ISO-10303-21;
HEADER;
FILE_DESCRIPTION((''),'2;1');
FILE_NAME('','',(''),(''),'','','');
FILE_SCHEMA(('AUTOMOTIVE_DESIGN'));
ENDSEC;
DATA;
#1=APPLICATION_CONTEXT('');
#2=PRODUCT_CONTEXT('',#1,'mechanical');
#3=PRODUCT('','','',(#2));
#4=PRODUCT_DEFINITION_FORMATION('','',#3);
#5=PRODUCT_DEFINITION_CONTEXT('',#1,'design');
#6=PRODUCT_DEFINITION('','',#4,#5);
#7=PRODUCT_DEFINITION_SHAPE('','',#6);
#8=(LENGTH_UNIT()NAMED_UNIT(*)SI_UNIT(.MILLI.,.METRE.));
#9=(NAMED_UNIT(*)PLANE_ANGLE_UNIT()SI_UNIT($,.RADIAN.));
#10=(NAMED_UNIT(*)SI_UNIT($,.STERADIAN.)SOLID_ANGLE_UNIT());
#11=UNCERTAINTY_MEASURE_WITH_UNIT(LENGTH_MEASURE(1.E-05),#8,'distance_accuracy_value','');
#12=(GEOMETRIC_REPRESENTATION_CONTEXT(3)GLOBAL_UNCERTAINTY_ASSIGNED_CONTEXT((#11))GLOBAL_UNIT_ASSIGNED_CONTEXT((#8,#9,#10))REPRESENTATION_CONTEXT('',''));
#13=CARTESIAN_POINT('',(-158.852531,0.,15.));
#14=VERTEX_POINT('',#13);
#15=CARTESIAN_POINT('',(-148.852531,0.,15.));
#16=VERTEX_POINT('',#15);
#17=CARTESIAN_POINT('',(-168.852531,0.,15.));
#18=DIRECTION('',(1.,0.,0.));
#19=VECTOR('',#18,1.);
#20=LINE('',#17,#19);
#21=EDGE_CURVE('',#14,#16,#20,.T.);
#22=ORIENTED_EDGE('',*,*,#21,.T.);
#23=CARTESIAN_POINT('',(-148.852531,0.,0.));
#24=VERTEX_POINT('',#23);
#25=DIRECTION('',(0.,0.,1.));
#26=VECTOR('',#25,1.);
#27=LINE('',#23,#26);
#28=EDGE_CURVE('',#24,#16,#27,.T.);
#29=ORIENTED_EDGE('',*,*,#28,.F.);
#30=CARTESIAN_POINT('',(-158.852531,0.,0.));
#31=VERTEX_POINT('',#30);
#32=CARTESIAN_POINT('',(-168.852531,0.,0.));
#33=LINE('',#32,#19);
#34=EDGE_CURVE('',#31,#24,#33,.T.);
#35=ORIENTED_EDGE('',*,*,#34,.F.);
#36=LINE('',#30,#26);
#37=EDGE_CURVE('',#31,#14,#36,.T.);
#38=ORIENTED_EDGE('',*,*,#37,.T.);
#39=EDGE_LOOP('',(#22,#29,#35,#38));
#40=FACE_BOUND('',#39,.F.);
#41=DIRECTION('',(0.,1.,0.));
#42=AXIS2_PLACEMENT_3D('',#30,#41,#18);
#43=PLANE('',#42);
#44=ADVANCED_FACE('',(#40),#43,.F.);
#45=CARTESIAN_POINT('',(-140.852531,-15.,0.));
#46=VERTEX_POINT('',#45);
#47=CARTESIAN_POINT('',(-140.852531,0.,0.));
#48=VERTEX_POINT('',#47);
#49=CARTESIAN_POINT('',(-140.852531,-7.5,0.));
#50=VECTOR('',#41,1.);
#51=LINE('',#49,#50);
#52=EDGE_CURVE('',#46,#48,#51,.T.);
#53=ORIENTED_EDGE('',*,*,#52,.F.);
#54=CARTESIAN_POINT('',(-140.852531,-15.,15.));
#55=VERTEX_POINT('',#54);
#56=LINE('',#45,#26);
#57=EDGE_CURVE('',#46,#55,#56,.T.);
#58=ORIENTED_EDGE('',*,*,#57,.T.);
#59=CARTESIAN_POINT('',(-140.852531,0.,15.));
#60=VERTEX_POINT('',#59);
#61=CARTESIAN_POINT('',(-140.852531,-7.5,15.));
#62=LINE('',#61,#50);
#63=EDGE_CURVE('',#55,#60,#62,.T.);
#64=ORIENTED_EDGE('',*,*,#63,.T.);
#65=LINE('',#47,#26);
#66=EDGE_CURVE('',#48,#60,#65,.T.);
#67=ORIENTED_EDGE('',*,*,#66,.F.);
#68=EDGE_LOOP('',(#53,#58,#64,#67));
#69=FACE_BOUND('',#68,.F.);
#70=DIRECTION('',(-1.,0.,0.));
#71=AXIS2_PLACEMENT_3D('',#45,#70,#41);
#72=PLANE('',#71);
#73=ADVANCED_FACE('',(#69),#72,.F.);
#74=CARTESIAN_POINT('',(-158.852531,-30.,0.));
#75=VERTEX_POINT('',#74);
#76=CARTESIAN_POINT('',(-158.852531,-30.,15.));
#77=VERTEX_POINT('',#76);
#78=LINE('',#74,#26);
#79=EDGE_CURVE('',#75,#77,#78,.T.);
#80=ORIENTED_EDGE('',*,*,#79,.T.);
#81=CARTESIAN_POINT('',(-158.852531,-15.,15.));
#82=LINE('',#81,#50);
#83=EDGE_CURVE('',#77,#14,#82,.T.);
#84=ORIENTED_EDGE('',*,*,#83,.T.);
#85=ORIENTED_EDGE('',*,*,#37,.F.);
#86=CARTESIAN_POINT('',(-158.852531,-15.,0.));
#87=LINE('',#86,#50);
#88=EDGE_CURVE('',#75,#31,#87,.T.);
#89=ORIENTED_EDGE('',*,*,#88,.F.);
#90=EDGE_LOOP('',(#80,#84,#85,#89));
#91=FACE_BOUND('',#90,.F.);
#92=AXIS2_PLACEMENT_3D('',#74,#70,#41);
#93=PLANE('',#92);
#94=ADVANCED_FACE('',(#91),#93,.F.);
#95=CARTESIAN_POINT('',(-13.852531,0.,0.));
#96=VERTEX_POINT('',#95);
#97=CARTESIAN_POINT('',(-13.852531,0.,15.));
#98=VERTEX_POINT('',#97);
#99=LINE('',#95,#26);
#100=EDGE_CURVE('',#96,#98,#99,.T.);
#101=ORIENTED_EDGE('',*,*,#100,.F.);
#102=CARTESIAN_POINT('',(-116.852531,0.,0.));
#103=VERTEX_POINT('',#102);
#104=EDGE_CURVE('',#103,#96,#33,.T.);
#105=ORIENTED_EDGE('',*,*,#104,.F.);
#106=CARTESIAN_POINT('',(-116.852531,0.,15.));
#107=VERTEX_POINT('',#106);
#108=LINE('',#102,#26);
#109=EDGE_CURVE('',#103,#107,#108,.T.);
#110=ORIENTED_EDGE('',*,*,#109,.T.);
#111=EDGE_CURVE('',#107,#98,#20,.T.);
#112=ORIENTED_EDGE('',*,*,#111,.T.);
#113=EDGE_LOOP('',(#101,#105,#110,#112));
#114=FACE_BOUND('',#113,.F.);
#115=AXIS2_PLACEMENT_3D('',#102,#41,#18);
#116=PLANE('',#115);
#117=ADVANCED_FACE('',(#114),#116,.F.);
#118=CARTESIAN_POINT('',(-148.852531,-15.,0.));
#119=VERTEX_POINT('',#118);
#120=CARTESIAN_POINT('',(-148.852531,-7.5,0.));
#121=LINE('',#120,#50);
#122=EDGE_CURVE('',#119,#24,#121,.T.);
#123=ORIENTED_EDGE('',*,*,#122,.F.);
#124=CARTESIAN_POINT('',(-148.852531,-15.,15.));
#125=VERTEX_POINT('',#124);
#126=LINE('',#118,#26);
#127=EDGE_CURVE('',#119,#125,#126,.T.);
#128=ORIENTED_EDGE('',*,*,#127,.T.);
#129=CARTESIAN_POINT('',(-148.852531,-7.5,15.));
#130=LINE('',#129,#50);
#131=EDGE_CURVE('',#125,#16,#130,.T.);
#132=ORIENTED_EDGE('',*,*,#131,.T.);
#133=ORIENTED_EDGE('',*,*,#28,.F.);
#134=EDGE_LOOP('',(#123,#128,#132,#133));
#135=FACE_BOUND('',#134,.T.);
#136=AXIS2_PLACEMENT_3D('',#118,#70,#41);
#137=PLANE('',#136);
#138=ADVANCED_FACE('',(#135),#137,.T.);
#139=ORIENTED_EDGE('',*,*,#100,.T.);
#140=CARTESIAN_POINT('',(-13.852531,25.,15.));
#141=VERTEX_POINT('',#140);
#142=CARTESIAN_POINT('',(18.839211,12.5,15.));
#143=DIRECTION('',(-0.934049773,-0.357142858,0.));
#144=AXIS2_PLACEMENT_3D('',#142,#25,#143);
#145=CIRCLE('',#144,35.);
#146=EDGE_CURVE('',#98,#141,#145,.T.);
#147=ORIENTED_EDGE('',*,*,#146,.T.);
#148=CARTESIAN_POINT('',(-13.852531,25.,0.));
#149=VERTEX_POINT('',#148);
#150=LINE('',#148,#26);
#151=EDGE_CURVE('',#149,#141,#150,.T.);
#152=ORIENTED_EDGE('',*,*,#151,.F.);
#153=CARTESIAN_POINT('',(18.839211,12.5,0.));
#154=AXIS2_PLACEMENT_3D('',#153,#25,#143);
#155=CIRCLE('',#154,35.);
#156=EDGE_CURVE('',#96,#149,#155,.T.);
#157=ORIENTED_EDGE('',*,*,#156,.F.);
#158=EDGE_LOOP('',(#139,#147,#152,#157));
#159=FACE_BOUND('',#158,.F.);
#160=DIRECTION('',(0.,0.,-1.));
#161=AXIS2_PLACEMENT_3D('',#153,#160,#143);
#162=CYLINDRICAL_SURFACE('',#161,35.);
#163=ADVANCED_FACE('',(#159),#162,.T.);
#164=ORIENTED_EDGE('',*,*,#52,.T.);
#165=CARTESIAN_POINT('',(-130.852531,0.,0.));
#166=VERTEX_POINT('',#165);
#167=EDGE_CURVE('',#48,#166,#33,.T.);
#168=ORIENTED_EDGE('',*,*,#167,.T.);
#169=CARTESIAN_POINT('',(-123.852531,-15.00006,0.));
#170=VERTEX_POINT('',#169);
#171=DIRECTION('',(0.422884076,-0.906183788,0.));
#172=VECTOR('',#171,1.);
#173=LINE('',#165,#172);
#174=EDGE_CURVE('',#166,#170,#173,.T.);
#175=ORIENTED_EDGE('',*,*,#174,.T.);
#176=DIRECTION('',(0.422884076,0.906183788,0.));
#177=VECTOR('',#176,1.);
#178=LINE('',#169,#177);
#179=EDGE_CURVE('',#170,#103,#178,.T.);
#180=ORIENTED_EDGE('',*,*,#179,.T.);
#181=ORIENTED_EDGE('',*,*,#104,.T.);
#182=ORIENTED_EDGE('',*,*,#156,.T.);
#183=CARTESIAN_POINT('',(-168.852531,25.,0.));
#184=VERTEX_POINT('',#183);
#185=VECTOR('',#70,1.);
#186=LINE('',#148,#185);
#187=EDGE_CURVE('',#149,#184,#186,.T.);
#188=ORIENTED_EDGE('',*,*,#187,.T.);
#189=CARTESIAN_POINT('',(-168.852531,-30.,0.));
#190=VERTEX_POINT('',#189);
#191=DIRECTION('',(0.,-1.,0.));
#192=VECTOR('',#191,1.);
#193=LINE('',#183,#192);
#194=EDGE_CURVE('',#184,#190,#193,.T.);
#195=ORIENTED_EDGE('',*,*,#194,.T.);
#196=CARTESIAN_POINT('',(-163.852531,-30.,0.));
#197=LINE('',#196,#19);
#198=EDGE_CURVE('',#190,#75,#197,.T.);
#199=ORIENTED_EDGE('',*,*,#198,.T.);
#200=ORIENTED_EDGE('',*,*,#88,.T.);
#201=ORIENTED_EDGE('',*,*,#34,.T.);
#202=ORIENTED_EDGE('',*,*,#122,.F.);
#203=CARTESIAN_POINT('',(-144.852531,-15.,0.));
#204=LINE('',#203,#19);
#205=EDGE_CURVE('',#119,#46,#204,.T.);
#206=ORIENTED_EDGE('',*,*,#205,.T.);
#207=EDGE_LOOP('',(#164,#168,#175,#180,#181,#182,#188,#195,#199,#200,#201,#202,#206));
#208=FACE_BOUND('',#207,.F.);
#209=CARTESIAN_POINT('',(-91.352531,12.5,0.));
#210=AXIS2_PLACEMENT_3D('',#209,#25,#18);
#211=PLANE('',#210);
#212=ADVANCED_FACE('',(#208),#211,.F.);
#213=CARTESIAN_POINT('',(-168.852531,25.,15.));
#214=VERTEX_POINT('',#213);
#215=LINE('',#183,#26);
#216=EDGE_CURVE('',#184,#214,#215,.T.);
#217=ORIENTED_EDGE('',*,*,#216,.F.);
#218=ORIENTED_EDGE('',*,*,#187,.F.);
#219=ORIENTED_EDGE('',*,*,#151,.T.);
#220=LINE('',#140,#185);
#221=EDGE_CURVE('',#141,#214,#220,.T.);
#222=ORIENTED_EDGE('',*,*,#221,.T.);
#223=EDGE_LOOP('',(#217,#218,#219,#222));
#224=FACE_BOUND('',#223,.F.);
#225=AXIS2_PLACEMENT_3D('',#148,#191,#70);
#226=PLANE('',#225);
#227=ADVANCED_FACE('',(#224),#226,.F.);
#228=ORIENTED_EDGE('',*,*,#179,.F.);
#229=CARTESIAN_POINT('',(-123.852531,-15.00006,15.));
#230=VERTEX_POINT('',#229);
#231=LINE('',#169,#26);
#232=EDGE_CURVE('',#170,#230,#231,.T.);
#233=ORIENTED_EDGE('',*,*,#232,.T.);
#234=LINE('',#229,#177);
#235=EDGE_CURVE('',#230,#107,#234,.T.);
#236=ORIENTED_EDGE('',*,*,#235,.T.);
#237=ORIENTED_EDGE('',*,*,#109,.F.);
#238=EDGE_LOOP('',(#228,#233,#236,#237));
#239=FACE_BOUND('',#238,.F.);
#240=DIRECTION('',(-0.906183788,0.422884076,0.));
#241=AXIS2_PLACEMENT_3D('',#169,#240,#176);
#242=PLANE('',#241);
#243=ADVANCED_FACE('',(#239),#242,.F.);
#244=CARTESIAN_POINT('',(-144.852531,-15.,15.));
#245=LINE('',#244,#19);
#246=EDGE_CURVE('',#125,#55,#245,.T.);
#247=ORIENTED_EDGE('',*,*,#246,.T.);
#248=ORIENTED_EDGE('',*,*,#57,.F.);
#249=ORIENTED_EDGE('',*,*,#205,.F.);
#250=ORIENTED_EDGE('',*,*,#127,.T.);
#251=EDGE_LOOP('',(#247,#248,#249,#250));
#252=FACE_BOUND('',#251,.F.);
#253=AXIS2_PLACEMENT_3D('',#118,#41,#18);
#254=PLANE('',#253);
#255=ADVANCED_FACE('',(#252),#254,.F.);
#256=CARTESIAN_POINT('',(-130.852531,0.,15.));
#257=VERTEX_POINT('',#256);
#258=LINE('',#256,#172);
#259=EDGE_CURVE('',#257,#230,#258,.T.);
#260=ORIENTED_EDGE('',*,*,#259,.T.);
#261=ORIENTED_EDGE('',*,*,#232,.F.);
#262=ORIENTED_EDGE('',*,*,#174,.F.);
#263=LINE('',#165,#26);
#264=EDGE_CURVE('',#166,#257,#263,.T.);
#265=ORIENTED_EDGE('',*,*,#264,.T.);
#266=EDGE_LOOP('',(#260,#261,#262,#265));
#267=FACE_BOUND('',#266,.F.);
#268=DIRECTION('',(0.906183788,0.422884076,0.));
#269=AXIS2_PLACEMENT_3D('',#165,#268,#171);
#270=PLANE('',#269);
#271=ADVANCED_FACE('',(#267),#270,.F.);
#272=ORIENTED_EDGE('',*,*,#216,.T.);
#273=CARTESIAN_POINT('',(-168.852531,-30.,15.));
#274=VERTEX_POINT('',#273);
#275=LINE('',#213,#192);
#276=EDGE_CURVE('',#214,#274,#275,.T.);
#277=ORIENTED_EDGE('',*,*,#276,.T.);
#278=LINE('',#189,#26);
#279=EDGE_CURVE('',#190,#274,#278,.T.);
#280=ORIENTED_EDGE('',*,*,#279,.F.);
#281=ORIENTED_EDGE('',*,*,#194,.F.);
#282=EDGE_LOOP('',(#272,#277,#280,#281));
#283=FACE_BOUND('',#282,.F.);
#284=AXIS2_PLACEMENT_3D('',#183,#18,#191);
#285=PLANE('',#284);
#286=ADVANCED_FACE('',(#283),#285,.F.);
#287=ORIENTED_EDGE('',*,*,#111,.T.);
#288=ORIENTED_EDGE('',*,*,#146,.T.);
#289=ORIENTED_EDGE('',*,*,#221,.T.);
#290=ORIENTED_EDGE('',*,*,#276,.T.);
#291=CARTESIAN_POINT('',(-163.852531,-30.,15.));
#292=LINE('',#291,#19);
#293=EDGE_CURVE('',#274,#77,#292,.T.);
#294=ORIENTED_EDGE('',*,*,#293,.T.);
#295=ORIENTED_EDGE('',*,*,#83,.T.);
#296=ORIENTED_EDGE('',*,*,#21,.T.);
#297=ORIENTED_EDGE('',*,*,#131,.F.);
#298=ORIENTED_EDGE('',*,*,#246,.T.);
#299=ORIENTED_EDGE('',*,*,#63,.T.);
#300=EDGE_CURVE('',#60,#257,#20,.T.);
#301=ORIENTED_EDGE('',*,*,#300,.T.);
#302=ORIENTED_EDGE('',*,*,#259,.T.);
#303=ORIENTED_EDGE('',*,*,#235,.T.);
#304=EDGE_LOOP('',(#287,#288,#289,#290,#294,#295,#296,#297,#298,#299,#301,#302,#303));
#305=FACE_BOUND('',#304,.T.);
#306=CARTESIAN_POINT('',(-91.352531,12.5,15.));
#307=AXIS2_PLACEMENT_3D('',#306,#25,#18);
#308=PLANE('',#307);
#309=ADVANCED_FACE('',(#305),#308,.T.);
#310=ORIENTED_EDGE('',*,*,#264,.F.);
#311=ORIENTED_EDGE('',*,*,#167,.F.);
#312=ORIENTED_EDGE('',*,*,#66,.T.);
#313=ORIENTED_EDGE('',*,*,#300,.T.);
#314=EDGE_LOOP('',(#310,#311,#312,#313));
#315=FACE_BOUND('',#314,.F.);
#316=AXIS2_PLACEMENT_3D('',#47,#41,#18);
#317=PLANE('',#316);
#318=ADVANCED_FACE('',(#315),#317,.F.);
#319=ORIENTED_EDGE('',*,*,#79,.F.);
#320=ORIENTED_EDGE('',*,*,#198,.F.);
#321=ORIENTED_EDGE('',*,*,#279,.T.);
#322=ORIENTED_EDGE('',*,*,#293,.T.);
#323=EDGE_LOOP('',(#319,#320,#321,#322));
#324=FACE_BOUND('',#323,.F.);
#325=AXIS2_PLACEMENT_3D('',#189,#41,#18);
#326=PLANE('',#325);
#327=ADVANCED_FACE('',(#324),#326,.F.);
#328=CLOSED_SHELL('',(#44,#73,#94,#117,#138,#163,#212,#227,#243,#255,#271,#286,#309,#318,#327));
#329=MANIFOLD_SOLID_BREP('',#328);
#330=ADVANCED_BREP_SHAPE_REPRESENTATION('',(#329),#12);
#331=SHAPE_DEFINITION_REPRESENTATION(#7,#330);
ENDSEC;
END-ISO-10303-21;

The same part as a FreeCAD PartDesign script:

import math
import FreeCAD as App
import Part
import Sketcher

V = App.Vector

doc = App.newDocument("Part")
body = doc.addObject("PartDesign::Body", "Body")

# Sketch on XY plane
sketch1 = body.newObject("Sketcher::SketchObject", "Sketch")
sketch1.AttachmentSupport = (doc.getObject("XY_Plane"), [""])
sketch1.MapMode = "FlatFace"
sketch1.addGeometry([
    Part.LineSegment(V(-14, 25, 0), V(-169, 25, 0)),  # 0
    Part.LineSegment(V(-169, 25, 0), V(-169, -30, 0)),  # 1
    Part.LineSegment(V(-169, -30, 0), V(-159, -30, 0)),  # 2
    Part.LineSegment(V(-159, -30, 0), V(-159, 0, 0)),  # 3
    Part.LineSegment(V(-159, 0, 0), V(-149, 0, 0)),  # 4
    Part.LineSegment(V(-149, 0, 0), V(-149, -15, 0)),  # 5
    Part.LineSegment(V(-149, -15, 0), V(-141, -15, 0)),  # 6
    Part.LineSegment(V(-141, -15, 0), V(-141, 0, 0)),  # 7
    Part.LineSegment(V(-141, 0, 0), V(-131, 0, 0)),  # 8
    Part.LineSegment(V(-131, 0, 0), V(-124, -15, 0)),  # 9
    Part.LineSegment(V(-124, -15, 0), V(-117, 0, 0)),  # 10
    Part.LineSegment(V(-117, 0, 0), V(-14, 0, 0)),  # 11
    Part.ArcOfCircle(Part.Circle(V(19, 12, 0), V(0, 0, 1), 35), math.radians(-159), math.radians(159)),  # 12
], False)
sketch1.addConstraint([
    Sketcher.Constraint("Coincident", 0, 2, 1, 1),
    Sketcher.Constraint("Coincident", 1, 2, 2, 1),
    Sketcher.Constraint("Coincident", 2, 2, 3, 1),
    Sketcher.Constraint("Coincident", 3, 2, 4, 1),
    Sketcher.Constraint("Coincident", 4, 2, 5, 1),
    Sketcher.Constraint("Coincident", 5, 2, 6, 1),
    Sketcher.Constraint("Coincident", 6, 2, 7, 1),
    Sketcher.Constraint("Coincident", 7, 2, 8, 1),
    Sketcher.Constraint("Coincident", 8, 2, 9, 1),
    Sketcher.Constraint("Coincident", 9, 2, 10, 1),
    Sketcher.Constraint("Coincident", 10, 2, 11, 1),
    Sketcher.Constraint("Coincident", 11, 2, 12, 1),
    Sketcher.Constraint("Coincident", 12, 2, 0, 1),
    Sketcher.Constraint("Horizontal", 0),
    Sketcher.Constraint("Vertical", 1),
    Sketcher.Constraint("Horizontal", 2),
    Sketcher.Constraint("Vertical", 3),
    Sketcher.Constraint("Horizontal", 4),
    Sketcher.Constraint("Vertical", 5),
    Sketcher.Constraint("Horizontal", 6),
    Sketcher.Constraint("Vertical", 7),
    Sketcher.Constraint("Horizontal", 8),
    Sketcher.Constraint("Horizontal", 11),
    Sketcher.Constraint("PointOnObject", 3, 2, -1),
    Sketcher.Constraint("PointOnObject", 7, 2, -1),
    Sketcher.Constraint("PointOnObject", 10, 2, -1),
    Sketcher.Constraint("Vertical", 11, 2, 12, 2),
    Sketcher.Constraint("Equal", 2, 4),
    Sketcher.Constraint("Equal", 4, 8),
    Sketcher.Constraint("Equal", 9, 10),
    Sketcher.Constraint("Radius", 12, 35.0),
    Sketcher.Constraint("DistanceX", 0, 2, 0, 1, 155.0),
    Sketcher.Constraint("DistanceX", 2, 1, 2, 2, 10.0),
    Sketcher.Constraint("DistanceX", 6, 1, 6, 2, 8.0),
    Sketcher.Constraint("DistanceX", 11, 1, 11, 2, 103.0),
    Sketcher.Constraint("DistanceY", 1, 2, 1, 1, 55.0),
    Sketcher.Constraint("DistanceY", 3, 1, 3, 2, 30.0),
    Sketcher.Constraint("DistanceY", 5, 2, 5, 1, 15.0),
    Sketcher.Constraint("Distance", 9, 16.553),
    Sketcher.Constraint("DistanceX", -1, 1, 12, 3, 18.839211),
])
pad1 = body.newObject("PartDesign::Pad", "Pad")
pad1.Profile = sketch1
pad1.Length = 15

doc.recompute()
